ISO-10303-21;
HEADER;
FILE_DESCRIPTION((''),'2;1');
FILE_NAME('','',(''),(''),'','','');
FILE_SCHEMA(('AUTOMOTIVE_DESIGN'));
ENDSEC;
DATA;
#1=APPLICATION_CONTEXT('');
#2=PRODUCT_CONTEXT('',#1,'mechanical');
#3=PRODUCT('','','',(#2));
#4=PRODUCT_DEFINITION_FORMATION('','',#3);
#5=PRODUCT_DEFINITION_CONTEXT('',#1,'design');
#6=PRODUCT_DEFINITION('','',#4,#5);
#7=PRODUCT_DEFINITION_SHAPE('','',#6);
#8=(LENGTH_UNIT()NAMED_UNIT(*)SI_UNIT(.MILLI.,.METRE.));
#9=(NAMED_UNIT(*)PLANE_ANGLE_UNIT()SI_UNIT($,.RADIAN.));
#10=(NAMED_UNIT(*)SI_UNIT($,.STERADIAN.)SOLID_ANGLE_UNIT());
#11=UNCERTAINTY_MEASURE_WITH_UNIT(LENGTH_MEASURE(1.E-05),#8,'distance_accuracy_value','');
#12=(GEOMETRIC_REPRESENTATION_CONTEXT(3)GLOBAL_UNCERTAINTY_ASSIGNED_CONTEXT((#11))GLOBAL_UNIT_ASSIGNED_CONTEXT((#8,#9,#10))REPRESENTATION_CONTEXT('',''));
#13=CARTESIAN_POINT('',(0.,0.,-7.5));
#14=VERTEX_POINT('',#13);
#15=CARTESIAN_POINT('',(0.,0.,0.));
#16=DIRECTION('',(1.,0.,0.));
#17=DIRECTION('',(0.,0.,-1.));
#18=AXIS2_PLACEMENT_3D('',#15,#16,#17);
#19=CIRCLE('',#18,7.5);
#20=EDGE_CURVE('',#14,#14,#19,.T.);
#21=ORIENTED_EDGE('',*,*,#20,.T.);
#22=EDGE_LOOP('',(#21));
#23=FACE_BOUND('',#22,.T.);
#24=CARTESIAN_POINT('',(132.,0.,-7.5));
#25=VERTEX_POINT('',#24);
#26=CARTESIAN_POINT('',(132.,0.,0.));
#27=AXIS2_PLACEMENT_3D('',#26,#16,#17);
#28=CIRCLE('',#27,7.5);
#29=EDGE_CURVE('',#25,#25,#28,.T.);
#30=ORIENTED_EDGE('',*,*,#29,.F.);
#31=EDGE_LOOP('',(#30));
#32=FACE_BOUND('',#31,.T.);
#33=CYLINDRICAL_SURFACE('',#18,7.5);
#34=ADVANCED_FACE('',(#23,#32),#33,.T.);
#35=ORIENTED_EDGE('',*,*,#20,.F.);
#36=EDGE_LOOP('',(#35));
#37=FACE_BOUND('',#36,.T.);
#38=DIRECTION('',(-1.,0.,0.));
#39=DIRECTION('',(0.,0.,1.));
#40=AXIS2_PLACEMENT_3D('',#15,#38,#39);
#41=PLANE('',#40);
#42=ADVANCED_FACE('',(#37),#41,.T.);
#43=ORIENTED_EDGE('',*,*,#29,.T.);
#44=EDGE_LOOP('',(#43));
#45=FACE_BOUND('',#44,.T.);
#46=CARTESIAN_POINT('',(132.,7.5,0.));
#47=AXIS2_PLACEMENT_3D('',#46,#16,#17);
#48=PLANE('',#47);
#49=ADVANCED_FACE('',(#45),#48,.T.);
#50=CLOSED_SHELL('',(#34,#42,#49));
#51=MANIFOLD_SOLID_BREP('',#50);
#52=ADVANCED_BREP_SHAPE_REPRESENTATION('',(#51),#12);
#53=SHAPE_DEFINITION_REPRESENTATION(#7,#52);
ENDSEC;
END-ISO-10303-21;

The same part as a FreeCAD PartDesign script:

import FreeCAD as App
import Part
import Sketcher

doc = App.newDocument("Part")
body = doc.addObject("PartDesign::Body", "Body")

# Sketch on XY plane
sketch1 = doc.addObject("Sketcher::SketchObject", "Sketch")
body.addObject(sketch1)
sketch1.AttachmentSupport = (doc.XY_Plane, [""])
sketch1.MapMode = "FlatFace"
sketch1.addGeometry(Part.LineSegment(App.Vector(0, 8, 0), App.Vector(0, 0, 0)), False)
sketch1.addGeometry(Part.LineSegment(App.Vector(0, 0, 0), App.Vector(132, 0, 0)), False)
sketch1.addGeometry(Part.LineSegment(App.Vector(132, 0, 0), App.Vector(132, 8, 0)), False)
sketch1.addGeometry(Part.LineSegment(App.Vector(132, 8, 0), App.Vector(0, 8, 0)), False)
sketch1.addConstraint(Sketcher.Constraint("Coincident", 0, 2, 1, 1))
sketch1.addConstraint(Sketcher.Constraint("Coincident", 1, 2, 2, 1))
sketch1.addConstraint(Sketcher.Constraint("Coincident", 2, 2, 3, 1))
sketch1.addConstraint(Sketcher.Constraint("Coincident", 3, 2, 0, 1))
sketch1.addConstraint(Sketcher.Constraint("Vertical", 0))
sketch1.addConstraint(Sketcher.Constraint("Horizontal", 1))
sketch1.addConstraint(Sketcher.Constraint("Vertical", 2))
sketch1.addConstraint(Sketcher.Constraint("Horizontal", 3))
sketch1.addConstraint(Sketcher.Constraint("Coincident", 0, 2, -1, 1))
sketch1.addConstraint(Sketcher.Constraint("DistanceX", 1, 1, 1, 2, 132.0))
sketch1.addConstraint(Sketcher.Constraint("DistanceY", 0, 2, 0, 1, 7.5))
revolution = doc.addObject("PartDesign::Revolution", "Revolution")
body.addObject(revolution)
revolution.Profile = sketch1
revolution.ReferenceAxis = (sketch1, ["H_Axis"])
revolution.Angle = 360

doc.recompute()
